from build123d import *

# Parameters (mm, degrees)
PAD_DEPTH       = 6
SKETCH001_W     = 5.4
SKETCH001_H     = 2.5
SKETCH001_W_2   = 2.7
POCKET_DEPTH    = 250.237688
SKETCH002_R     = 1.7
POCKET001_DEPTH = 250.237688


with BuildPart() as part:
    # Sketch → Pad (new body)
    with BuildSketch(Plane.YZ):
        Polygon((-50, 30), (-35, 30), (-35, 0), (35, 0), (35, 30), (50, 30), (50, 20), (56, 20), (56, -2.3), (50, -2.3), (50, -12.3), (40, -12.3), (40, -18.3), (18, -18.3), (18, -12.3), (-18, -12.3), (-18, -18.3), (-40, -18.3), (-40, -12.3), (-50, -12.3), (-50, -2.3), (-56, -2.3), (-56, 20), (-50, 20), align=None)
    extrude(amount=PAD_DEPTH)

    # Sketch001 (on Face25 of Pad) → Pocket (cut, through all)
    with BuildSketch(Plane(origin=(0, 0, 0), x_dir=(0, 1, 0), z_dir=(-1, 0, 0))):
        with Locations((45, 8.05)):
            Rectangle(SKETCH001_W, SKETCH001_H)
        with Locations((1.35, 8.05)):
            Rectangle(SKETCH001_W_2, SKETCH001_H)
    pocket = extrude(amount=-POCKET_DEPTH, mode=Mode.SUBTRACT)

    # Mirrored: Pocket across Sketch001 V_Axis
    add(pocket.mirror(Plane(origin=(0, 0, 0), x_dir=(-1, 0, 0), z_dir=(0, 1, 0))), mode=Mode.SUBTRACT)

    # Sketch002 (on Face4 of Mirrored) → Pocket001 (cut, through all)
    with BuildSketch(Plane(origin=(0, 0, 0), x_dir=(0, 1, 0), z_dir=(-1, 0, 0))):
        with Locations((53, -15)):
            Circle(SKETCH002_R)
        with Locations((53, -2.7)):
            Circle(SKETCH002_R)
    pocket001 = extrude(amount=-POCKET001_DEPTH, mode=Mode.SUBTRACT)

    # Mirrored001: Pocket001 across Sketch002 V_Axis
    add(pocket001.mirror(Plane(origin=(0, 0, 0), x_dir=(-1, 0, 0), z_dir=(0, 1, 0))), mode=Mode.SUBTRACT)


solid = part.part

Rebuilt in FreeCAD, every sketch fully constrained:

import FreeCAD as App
import Part
import Sketcher
from FreeCAD import Vector


def add_polygon(sketch, points):
    """Adds a closed chain of lines whose ends are joined by coincident constraints."""
    first, n = sketch.GeometryCount, len(points)
    for a, b in zip(points, points[1:] + points[:1]):
        sketch.addGeometry(Part.LineSegment(App.Vector(*a, 0), App.Vector(*b, 0)), False)
    for i in range(n):
        sketch.addConstraint(Sketcher.Constraint("Coincident", first + i, 2, first + (i + 1) % n, 1))

doc = App.newDocument("Part")
body = doc.addObject("PartDesign::Body", "Body")

sketch1 = body.newObject("Sketcher::SketchObject", "Sketch")
sketch1.AttachmentSupport = (doc.getObject("YZ_Plane"), [""])
sketch1.MapMode = "FlatFace"
add_polygon(sketch1, [(-35, 30), (-50, 30), (-50, 20), (-56, 20), (-56, -2), (-50, -2), (-50, -12), (-40, -12), (-40, -18), (-18, -18), (-18, -12), (18, -12), (18, -18), (40, -18), (40, -12), (50, -12), (50, -2), (56, -2), (56, 20), (50, 20), (50, 30), (35, 30), (35, 0), (-35, 0)])
sketch1.addConstraint(Sketcher.Constraint("Horizontal", 0))
sketch1.addConstraint(Sketcher.Constraint("Vertical", 1))
sketch1.addConstraint(Sketcher.Constraint("Horizontal", 2))
sketch1.addConstraint(Sketcher.Constraint("Vertical", 3))
sketch1.addConstraint(Sketcher.Constraint("Horizontal", 4))
sketch1.addConstraint(Sketcher.Constraint("Vertical", 5))
sketch1.addConstraint(Sketcher.Constraint("Horizontal", 6))
sketch1.addConstraint(Sketcher.Constraint("Vertical", 7))
sketch1.addConstraint(Sketcher.Constraint("Horizontal", 8))
sketch1.addConstraint(Sketcher.Constraint("Vertical", 9))
sketch1.addConstraint(Sketcher.Constraint("Horizontal", 10))
sketch1.addConstraint(Sketcher.Constraint("Vertical", 11))
sketch1.addConstraint(Sketcher.Constraint("Horizontal", 12))
sketch1.addConstraint(Sketcher.Constraint("Vertical", 13))
sketch1.addConstraint(Sketcher.Constraint("Horizontal", 14))
sketch1.addConstraint(Sketcher.Constraint("Vertical", 15))
sketch1.addConstraint(Sketcher.Constraint("Horizontal", 16))
sketch1.addConstraint(Sketcher.Constraint("Vertical", 17))
sketch1.addConstraint(Sketcher.Constraint("Horizontal", 18))
sketch1.addConstraint(Sketcher.Constraint("Vertical", 19))
sketch1.addConstraint(Sketcher.Constraint("Horizontal", 20))
sketch1.addConstraint(Sketcher.Constraint("Vertical", 21))
sketch1.addConstraint(Sketcher.Constraint("Horizontal", 22))
sketch1.addConstraint(Sketcher.Constraint("Vertical", 23))
sketch1.addConstraint(Sketcher.Constraint("Symmetric", 21, 2, 22, 2, -1, 1))
sketch1.addConstraint(Sketcher.Constraint("Symmetric", 8, 2, 11, 2, -2))
sketch1.addConstraint(Sketcher.Constraint("Symmetric", 6, 2, 13, 2, -2))
sketch1.addConstraint(Sketcher.Constraint("Symmetric", 4, 2, 15, 2, -2))
sketch1.addConstraint(Sketcher.Constraint("Symmetric", 2, 2, 17, 2, -2))
sketch1.addConstraint(Sketcher.Constraint("Symmetric", 0, 2, 19, 2, -2))
sketch1.addConstraint(Sketcher.Constraint("Horizontal", 6, 2, 9, 2))
sketch1.addConstraint(Sketcher.Constraint("Vertical", 1, 2, 4, 2))
sketch1.addConstraint(Sketcher.Constraint("Equal", 14, 1))
sketch1.addConstraint(Sketcher.Constraint("Equal", 1, 5))
sketch1.addConstraint(Sketcher.Constraint("Equal", 18, 7))
sketch1.addConstraint(Sketcher.Constraint("DistanceX", 0, 2, 0, 1, 15.0))
sketch1.addConstraint(Sketcher.Constraint("DistanceX", 2, 2, 2, 1, 6.0))
sketch1.addConstraint(Sketcher.Constraint("DistanceX", 6, 1, 6, 2, 10.0))
sketch1.addConstraint(Sketcher.Constraint("DistanceX", 8, 1, 8, 2, 22.0))
sketch1.addConstraint(Sketcher.Constraint("DistanceX", 10, 1, 10, 2, 36.0))
sketch1.addConstraint(Sketcher.Constraint("DistanceY", 21, 2, 21, 1, 30.0))
sketch1.addConstraint(Sketcher.Constraint("DistanceY", 3, 2, 3, 1, 22.3))
pad1 = body.newObject("PartDesign::Pad", "Pad")
pad1.Profile = sketch1
pad1.Length = 6

sketch2 = body.newObject("Sketcher::SketchObject", "Sketch001")
sketch2.AttachmentSupport = (doc.getObject("YZ_Plane"), [""])
sketch2.MapMode = "FlatFace"
add_polygon(sketch2, [(42.3, -9.3), (42.3, -6.8), (47.7, -6.8), (47.7, -9.3)])
add_polygon(sketch2, [(0, -9.3), (0, -6.8), (2.7, -6.8), (2.7, -9.3)])
sketch2.addConstraint(Sketcher.Constraint("Vertical", 0))
sketch2.addConstraint(Sketcher.Constraint("Horizontal", 1))
sketch2.addConstraint(Sketcher.Constraint("Vertical", 2))
sketch2.addConstraint(Sketcher.Constraint("Horizontal", 3))
sketch2.addConstraint(Sketcher.Constraint("Vertical", 4))
sketch2.addConstraint(Sketcher.Constraint("Horizontal", 5))
sketch2.addConstraint(Sketcher.Constraint("Vertical", 6))
sketch2.addConstraint(Sketcher.Constraint("Horizontal", 7))
sketch2.addConstraint(Sketcher.Constraint("PointOnObject", 4, 2, -2))
sketch2.addConstraint(Sketcher.Constraint("Horizontal", 1, 2, 4, 2))
sketch2.addConstraint(Sketcher.Constraint("Horizontal", 3, 2, 6, 2))
sketch2.addConstraint(Sketcher.Constraint("DistanceX", 1, 1, 1, 2, 5.4))
sketch2.addConstraint(Sketcher.Constraint("DistanceX", 5, 1, 5, 2, 2.7))
sketch2.addConstraint(Sketcher.Constraint("DistanceY", 0, 1, 0, 2, 2.5))
sketch2.addConstraint(Sketcher.Constraint("DistanceX", 5, 2, 1, 2, 45.0))
sketch2.addConstraint(Sketcher.Constraint("DistanceY", 0, 2, -1, 1, 6.8))
pocket1 = body.newObject("PartDesign::Pocket", "Pocket")
pocket1.Profile = sketch2
pocket1.Type = "ThroughAll"
pocket1.Reversed = True
doc.recompute()

mirrored = body.newObject("PartDesign::Mirrored", "Mirrored")
mirrored.Originals = [pocket1]
mirrored.MirrorPlane = (doc.getObject("XZ_Plane"), [""])
body.Tip = mirrored

sketch3 = body.newObject("Sketcher::SketchObject", "Sketch002")
sketch3.AttachmentSupport = (doc.getObject("YZ_Plane"), [""])
sketch3.MapMode = "FlatFace"
sketch3.addGeometry(Part.Circle(Vector(53, 15, 0), Vector(0, 0, 1), 1.7), False)
sketch3.addGeometry(Part.Circle(Vector(53, 2.7, 0), Vector(0, 0, 1), 1.7), False)
sketch3.addConstraint(Sketcher.Constraint("Equal", 0, 1))
sketch3.addConstraint(Sketcher.Constraint("Vertical", 0, 3, 1, 3))
sketch3.addConstraint(Sketcher.Constraint("Diameter", 0, 3.4))
sketch3.addConstraint(Sketcher.Constraint("DistanceX", -1, 1, 0, 3, 53.0))
sketch3.addConstraint(Sketcher.Constraint("DistanceY", -1, 1, 0, 3, 15.0))
sketch3.addConstraint(Sketcher.Constraint("DistanceY", -1, 1, 1, 3, 2.7))
pocket2 = body.newObject("PartDesign::Pocket", "Pocket001")
pocket2.Profile = sketch3
pocket2.Type = "ThroughAll"
pocket2.Reversed = True
doc.recompute()

mirrored2 = body.newObject("PartDesign::Mirrored", "Mirrored001")
mirrored2.Originals = [pocket2]
mirrored2.MirrorPlane = (doc.getObject("XZ_Plane"), [""])
body.Tip = mirrored2

doc.recompute()
